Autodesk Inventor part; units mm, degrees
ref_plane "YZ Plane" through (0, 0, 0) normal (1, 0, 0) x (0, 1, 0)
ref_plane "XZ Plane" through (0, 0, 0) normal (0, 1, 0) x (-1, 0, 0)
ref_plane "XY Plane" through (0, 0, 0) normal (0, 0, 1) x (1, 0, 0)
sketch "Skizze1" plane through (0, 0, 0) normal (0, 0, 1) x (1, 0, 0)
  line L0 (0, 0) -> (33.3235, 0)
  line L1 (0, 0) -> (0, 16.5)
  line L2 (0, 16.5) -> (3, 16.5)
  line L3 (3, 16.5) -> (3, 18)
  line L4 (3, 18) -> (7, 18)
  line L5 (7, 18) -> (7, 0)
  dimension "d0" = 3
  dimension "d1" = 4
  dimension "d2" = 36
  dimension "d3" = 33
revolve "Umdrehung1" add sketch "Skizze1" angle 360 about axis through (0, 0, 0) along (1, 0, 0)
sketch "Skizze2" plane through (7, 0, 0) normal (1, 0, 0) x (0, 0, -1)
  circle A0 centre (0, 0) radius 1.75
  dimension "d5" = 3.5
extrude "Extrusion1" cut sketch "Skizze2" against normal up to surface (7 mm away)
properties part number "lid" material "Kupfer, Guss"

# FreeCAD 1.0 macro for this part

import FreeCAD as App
import Part
import Sketcher

doc = App.newDocument("Part")
body = doc.addObject("PartDesign::Body", "Body")

sketch1 = body.newObject("Sketcher::SketchObject", "Sketch")
sketch1.AttachmentSupport = (doc.getObject("XY_Plane"), [""])
sketch1.MapMode = "FlatFace"
sketch1.addGeometry(Part.LineSegment(App.Vector(0, 16.5, 0), App.Vector(0, 0, 0)), False)
sketch1.addGeometry(Part.LineSegment(App.Vector(0, 0, 0), App.Vector(7, 0, 0)), False)
sketch1.addGeometry(Part.LineSegment(App.Vector(7, 0, 0), App.Vector(7, 18, 0)), False)
sketch1.addGeometry(Part.LineSegment(App.Vector(7, 18, 0), App.Vector(3, 18, 0)), False)
sketch1.addGeometry(Part.LineSegment(App.Vector(3, 18, 0), App.Vector(3, 16.5, 0)), False)
sketch1.addGeometry(Part.LineSegment(App.Vector(3, 16.5, 0), App.Vector(0, 16.5, 0)), False)
sketch1.addConstraint(Sketcher.Constraint("Coincident", 0, 2, 1, 1))
sketch1.addConstraint(Sketcher.Constraint("Coincident", 1, 2, 2, 1))
sketch1.addConstraint(Sketcher.Constraint("Coincident", 2, 2, 3, 1))
sketch1.addConstraint(Sketcher.Constraint("Coincident", 3, 2, 4, 1))
sketch1.addConstraint(Sketcher.Constraint("Coincident", 4, 2, 5, 1))
sketch1.addConstraint(Sketcher.Constraint("Coincident", 5, 2, 0, 1))
sketch1.addConstraint(Sketcher.Constraint("Vertical", 0))
sketch1.addConstraint(Sketcher.Constraint("Horizontal", 1))
sketch1.addConstraint(Sketcher.Constraint("Vertical", 2))
sketch1.addConstraint(Sketcher.Constraint("Horizontal", 3))
sketch1.addConstraint(Sketcher.Constraint("Vertical", 4))
sketch1.addConstraint(Sketcher.Constraint("Horizontal", 5))
sketch1.addConstraint(Sketcher.Constraint("Coincident", 0, 2, -1, 1))
sketch1.addConstraint(Sketcher.Constraint("DistanceX", 3, 2, 3, 1, 4.0))
sketch1.addConstraint(Sketcher.Constraint("DistanceX", 5, 2, 5, 1, 3.0))
sketch1.addConstraint(Sketcher.Constraint("DistanceY", 2, 1, 2, 2, 18.0))
sketch1.addConstraint(Sketcher.Constraint("DistanceY", 0, 2, 0, 1, 16.5))
revolution = body.newObject("PartDesign::Revolution", "Revolution")
revolution.Profile = sketch1
revolution.ReferenceAxis = (sketch1, ["H_Axis"])
revolution.Angle = 360

sketch2 = body.newObject("Sketcher::SketchObject", "Sketch001")
sketch2.AttachmentSupport = (doc.getObject("YZ_Plane"), [""])
sketch2.MapMode = "FlatFace"
sketch2.AttachmentOffset = App.Placement(App.Vector(0, 0, 7), App.Rotation())
sketch2.addGeometry(Part.Circle(App.Vector(0, 0, 0), App.Vector(0, 0, 1), 1.8), False)
sketch2.addConstraint(Sketcher.Constraint("Coincident", 0, 3, -1, 1))
sketch2.addConstraint(Sketcher.Constraint("Diameter", 0, 3.5))
pocket1 = body.newObject("PartDesign::Pocket", "Pocket")
pocket1.Profile = sketch2
pocket1.Length = 7

doc.recompute()
